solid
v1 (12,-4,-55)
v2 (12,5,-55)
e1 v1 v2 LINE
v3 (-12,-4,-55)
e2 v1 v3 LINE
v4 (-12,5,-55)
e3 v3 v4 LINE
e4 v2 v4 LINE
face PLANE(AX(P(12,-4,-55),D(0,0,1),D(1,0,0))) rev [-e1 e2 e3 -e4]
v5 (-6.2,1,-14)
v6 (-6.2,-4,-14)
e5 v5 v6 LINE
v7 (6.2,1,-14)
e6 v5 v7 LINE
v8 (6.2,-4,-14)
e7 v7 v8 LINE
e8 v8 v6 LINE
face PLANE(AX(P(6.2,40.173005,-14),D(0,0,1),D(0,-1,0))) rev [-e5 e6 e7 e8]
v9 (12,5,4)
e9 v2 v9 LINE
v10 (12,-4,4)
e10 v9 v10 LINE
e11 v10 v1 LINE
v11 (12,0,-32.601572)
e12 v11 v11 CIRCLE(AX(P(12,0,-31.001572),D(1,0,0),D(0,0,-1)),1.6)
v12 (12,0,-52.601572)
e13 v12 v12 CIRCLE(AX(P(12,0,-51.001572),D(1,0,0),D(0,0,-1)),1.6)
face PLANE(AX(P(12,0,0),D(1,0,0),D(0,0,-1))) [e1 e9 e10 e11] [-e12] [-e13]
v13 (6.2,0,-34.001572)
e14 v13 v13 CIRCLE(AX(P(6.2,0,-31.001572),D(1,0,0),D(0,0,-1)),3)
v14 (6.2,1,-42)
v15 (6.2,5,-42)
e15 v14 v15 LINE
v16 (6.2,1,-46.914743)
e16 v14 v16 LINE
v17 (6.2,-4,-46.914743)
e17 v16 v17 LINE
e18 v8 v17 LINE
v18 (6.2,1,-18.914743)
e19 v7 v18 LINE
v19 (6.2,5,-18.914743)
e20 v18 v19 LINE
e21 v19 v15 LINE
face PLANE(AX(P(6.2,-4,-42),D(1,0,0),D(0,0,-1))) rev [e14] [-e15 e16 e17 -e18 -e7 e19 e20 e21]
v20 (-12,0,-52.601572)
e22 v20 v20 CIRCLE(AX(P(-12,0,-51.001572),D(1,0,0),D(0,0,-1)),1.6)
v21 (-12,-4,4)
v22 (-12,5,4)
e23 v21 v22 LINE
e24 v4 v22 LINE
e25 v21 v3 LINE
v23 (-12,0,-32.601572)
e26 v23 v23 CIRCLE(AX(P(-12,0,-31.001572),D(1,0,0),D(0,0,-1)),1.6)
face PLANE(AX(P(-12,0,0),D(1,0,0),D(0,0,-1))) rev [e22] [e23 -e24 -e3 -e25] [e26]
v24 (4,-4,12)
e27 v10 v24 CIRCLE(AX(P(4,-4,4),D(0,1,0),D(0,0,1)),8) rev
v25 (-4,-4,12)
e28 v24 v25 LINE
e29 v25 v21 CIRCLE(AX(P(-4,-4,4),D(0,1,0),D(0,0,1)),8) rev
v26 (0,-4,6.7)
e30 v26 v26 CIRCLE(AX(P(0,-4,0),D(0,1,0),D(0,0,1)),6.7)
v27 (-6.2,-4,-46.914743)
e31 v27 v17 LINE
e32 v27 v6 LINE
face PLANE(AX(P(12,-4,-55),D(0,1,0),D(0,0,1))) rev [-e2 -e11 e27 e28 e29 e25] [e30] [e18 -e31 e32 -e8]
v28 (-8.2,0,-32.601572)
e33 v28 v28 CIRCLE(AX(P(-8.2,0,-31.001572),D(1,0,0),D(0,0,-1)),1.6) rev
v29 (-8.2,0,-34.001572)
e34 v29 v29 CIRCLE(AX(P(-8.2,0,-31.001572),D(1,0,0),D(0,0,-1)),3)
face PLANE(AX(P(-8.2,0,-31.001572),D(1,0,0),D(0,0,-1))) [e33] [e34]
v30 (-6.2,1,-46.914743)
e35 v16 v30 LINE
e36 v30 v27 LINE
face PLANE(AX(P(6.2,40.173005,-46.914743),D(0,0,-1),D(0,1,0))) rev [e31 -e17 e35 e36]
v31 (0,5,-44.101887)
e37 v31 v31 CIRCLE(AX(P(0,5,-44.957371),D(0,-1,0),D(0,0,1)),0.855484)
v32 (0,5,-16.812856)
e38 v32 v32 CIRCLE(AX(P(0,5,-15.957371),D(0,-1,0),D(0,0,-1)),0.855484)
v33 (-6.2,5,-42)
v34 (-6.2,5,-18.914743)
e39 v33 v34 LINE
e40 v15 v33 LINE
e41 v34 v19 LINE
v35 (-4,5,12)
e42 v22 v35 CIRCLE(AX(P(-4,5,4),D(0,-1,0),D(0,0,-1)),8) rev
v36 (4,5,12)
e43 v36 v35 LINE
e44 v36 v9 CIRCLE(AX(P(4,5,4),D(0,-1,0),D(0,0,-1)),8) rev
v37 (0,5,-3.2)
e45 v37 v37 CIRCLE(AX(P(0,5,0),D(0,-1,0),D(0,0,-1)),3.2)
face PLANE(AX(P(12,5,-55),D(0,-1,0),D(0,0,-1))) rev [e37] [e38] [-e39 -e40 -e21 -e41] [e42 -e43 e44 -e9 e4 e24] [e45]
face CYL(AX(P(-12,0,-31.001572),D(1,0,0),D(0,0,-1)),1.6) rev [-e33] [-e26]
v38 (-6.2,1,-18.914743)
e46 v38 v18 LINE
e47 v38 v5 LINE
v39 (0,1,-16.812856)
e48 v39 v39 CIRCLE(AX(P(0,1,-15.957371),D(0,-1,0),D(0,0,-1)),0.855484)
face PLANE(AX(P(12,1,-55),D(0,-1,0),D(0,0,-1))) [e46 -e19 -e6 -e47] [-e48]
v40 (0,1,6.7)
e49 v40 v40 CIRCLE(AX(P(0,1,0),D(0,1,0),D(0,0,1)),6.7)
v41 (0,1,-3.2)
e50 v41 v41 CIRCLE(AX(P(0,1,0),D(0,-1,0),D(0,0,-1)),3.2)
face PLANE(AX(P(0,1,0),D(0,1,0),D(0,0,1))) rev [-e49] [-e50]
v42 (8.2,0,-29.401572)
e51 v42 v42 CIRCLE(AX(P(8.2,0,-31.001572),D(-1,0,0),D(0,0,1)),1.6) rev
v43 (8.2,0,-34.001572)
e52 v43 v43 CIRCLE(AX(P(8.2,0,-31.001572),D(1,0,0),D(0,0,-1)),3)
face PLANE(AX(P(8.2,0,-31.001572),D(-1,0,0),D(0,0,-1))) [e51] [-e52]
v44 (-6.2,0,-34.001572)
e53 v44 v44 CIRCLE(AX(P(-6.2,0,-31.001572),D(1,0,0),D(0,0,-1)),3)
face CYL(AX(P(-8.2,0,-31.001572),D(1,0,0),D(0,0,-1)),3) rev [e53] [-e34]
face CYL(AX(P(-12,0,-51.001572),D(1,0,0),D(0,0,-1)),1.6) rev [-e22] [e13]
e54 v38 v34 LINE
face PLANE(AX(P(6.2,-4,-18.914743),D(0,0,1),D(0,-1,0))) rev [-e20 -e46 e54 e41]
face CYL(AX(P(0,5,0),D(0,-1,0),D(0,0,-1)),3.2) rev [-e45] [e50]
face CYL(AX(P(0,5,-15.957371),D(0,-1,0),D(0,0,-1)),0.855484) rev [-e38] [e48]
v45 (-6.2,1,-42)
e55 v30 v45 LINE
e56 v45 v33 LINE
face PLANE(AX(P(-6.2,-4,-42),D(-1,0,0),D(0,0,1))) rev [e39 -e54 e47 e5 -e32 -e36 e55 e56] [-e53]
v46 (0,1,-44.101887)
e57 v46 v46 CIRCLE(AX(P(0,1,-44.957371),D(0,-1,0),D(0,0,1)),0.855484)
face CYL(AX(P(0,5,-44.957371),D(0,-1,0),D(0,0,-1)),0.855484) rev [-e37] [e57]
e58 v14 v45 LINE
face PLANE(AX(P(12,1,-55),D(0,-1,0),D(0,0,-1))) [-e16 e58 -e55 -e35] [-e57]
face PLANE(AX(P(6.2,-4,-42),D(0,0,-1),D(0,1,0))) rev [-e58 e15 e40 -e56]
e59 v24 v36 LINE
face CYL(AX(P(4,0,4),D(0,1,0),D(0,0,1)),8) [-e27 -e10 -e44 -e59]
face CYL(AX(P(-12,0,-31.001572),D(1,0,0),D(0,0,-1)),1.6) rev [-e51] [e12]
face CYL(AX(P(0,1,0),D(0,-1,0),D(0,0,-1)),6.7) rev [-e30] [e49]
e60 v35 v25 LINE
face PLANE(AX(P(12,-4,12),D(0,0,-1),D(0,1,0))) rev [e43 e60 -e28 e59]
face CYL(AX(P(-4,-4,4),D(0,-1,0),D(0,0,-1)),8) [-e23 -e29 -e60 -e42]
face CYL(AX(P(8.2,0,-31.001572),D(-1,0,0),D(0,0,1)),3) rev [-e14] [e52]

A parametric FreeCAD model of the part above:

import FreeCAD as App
import Part
import Sketcher
Q = App.Units.Quantity


def edges_at(feature, points):
    """Names of the edges that pass closest to the given points."""
    edges = feature.Shape.Edges
    near = lambda p: min(range(len(edges)), key=lambda i: edges[i].distToShape(Part.Vertex(*p))[0])
    return sorted({f"Edge{near(p) + 1}" for p in points})

doc = App.newDocument("Part")
body = doc.addObject("PartDesign::Body", "Body")

# Sketch on YZ plane
sketch1 = body.newObject("Sketcher::SketchObject", "Sketch")
sketch1.AttachmentSupport = (doc.getObject("YZ_Plane"), [""])
sketch1.MapMode = "FlatFace"
sketch1.addGeometry(Part.LineSegment(App.Vector(5, 12, 0), App.Vector(-4, 12, 0)), False)
sketch1.addGeometry(Part.LineSegment(App.Vector(-4, 12, 0), App.Vector(-4, -55, 0)), False)
sketch1.addGeometry(Part.LineSegment(App.Vector(-4, -55, 0), App.Vector(5, -55, 0)), False)
sketch1.addGeometry(Part.LineSegment(App.Vector(5, -55, 0), App.Vector(5, 12, 0)), False)
sketch1.addConstraint(Sketcher.Constraint("Coincident", 0, 2, 1, 1))
sketch1.addConstraint(Sketcher.Constraint("Coincident", 1, 2, 2, 1))
sketch1.addConstraint(Sketcher.Constraint("Coincident", 2, 2, 3, 1))
sketch1.addConstraint(Sketcher.Constraint("Coincident", 3, 2, 0, 1))
sketch1.addConstraint(Sketcher.Constraint("Horizontal", 0))
sketch1.addConstraint(Sketcher.Constraint("Vertical", 1))
sketch1.addConstraint(Sketcher.Constraint("Horizontal", 2))
sketch1.addConstraint(Sketcher.Constraint("Vertical", 3))
sketch1.addConstraint(Sketcher.Constraint("DistanceX", 0, 2, 0, 1, Q("9 mm")))
sketch1.addConstraint(Sketcher.Constraint("DistanceY", 1, 2, 1, 1, Q("67 mm")))
sketch1.addConstraint(Sketcher.Constraint("DistanceX", 0, 2, -1, 1, Q("4 mm")))
sketch1.addConstraint(Sketcher.Constraint("DistanceY", -1, 1, 0, 2, Q("12 mm")))
pad1 = body.newObject("PartDesign::Pad", "Pad")
pad1.Profile = sketch1
pad1.Length = 24
pad1.Midplane = True

# Sketch on XZ plane
sketch2 = body.newObject("Sketcher::SketchObject", "Sketch001")
sketch2.AttachmentSupport = (doc.getObject("XZ_Plane"), [""])
sketch2.MapMode = "FlatFace"
sketch2.AttachmentOffset = App.Placement(App.Vector(0, 0, 4), App.Rotation())
sketch2.addGeometry(Part.Circle(App.Vector(0, 0, 0), App.Vector(0, 0, 1), 7), False)
sketch2.addConstraint(Sketcher.Constraint("Coincident", 0, 3, -1, 1))
sketch2.addConstraint(Sketcher.Constraint("Diameter", 0, Q("13.4 mm")))
pocket1 = body.newObject("PartDesign::Pocket", "Pocket")
pocket1.Profile = sketch2
pocket1.Length = 5

# Sketch on XZ plane
sketch3 = body.newObject("Sketcher::SketchObject", "Sketch002")
sketch3.AttachmentSupport = (doc.getObject("XZ_Plane"), [""])
sketch3.MapMode = "FlatFace"
sketch3.AttachmentOffset = App.Placement(App.Vector(0, 0, -1), App.Rotation())
sketch3.addGeometry(Part.Circle(App.Vector(0, 0, 0), App.Vector(0, 0, 1), 3.2), False)
sketch3.addConstraint(Sketcher.Constraint("Coincident", 0, 3, -1, 1))
sketch3.addConstraint(Sketcher.Constraint("Diameter", 0, Q("6.4 mm")))
pocket2 = body.newObject("PartDesign::Pocket", "Pocket001")
pocket2.Profile = sketch3
pocket2.Type = "ThroughAll"

# Sketch on XZ plane
sketch4 = body.newObject("Sketcher::SketchObject", "Sketch003")
sketch4.AttachmentSupport = (doc.getObject("XZ_Plane"), [""])
sketch4.MapMode = "FlatFace"
sketch4.AttachmentOffset = App.Placement(App.Vector(0, 0, -5), App.Rotation())
sketch4.addGeometry(Part.LineSegment(App.Vector(-6, -42, 0), App.Vector(-6, -19, 0)), False)
sketch4.addGeometry(Part.LineSegment(App.Vector(-6, -19, 0), App.Vector(6, -19, 0)), False)
sketch4.addGeometry(Part.LineSegment(App.Vector(6, -19, 0), App.Vector(6, -42, 0)), False)
sketch4.addGeometry(Part.LineSegment(App.Vector(6, -42, 0), App.Vector(-6, -42, 0)), False)
sketch4.addConstraint(Sketcher.Constraint("Coincident", 0, 2, 1, 1))
sketch4.addConstraint(Sketcher.Constraint("Coincident", 1, 2, 2, 1))
sketch4.addConstraint(Sketcher.Constraint("Coincident", 2, 2, 3, 1))
sketch4.addConstraint(Sketcher.Constraint("Coincident", 3, 2, 0, 1))
sketch4.addConstraint(Sketcher.Constraint("Vertical", 0))
sketch4.addConstraint(Sketcher.Constraint("Horizontal", 1))
sketch4.addConstraint(Sketcher.Constraint("Vertical", 2))
sketch4.addConstraint(Sketcher.Constraint("Horizontal", 3))
sketch4.addConstraint(Sketcher.Constraint("DistanceX", 1, 1, 1, 2, Q("12.4 mm")))
sketch4.addConstraint(Sketcher.Constraint("DistanceY", 2, 2, -1, 1, Q("42 mm")))
sketch4.addConstraint(Sketcher.Constraint("DistanceX", 0, 2, -1, 1, Q("6.2 mm")))
sketch4.addConstraint(Sketcher.Constraint("DistanceY", 0, 1, 0, 2, Q("23.085257 mm")))
pocket3 = body.newObject("PartDesign::Pocket", "Pocket002")
pocket3.Profile = sketch4
pocket3.Type = "ThroughAll"
pocket3.Reversed = True

# Sketch on XZ plane
sketch5 = body.newObject("Sketcher::SketchObject", "Sketch004")
sketch5.AttachmentSupport = (doc.getObject("XZ_Plane"), [""])
sketch5.MapMode = "FlatFace"
sketch5.AttachmentOffset = App.Placement(App.Vector(0, 0, 4), App.Rotation())
sketch5.addGeometry(Part.LineSegment(App.Vector(-6, -14, 0), App.Vector(-6, -47, 0)), False)
sketch5.addGeometry(Part.LineSegment(App.Vector(-6, -47, 0), App.Vector(6, -47, 0)), False)
sketch5.addGeometry(Part.LineSegment(App.Vector(6, -47, 0), App.Vector(6, -14, 0)), False)
sketch5.addGeometry(Part.LineSegment(App.Vector(6, -14, 0), App.Vector(-6, -14, 0)), False)
sketch5.addConstraint(Sketcher.Constraint("Coincident", 0, 2, 1, 1))
sketch5.addConstraint(Sketcher.Constraint("Coincident", 1, 2, 2, 1))
sketch5.addConstraint(Sketcher.Constraint("Coincident", 2, 2, 3, 1))
sketch5.addConstraint(Sketcher.Constraint("Coincident", 3, 2, 0, 1))
sketch5.addConstraint(Sketcher.Constraint("Vertical", 0))
sketch5.addConstraint(Sketcher.Constraint("Horizontal", 1))
sketch5.addConstraint(Sketcher.Constraint("Vertical", 2))
sketch5.addConstraint(Sketcher.Constraint("Horizontal", 3))
sketch5.addConstraint(Sketcher.Constraint("DistanceX", 1, 1, 1, 2, Q("12.4 mm")))
sketch5.addConstraint(Sketcher.Constraint("DistanceY", 2, 2, -1, 1, Q("14 mm")))
sketch5.addConstraint(Sketcher.Constraint("DistanceX", 0, 2, -1, 1, Q("6.2 mm")))
sketch5.addConstraint(Sketcher.Constraint("DistanceY", 0, 2, 0, 1, Q("32.914743 mm")))
pocket4 = body.newObject("PartDesign::Pocket", "Pocket003")
pocket4.Profile = sketch5
pocket4.Length = 5

# Sketch on XZ plane
sketch6 = body.newObject("Sketcher::SketchObject", "Sketch005")
sketch6.AttachmentSupport = (doc.getObject("XZ_Plane"), [""])
sketch6.MapMode = "FlatFace"
sketch6.AttachmentOffset = App.Placement(App.Vector(0, 0, -1), App.Rotation())
sketch6.addGeometry(Part.Circle(App.Vector(0, -16, 0), App.Vector(0, 0, 1), 0.9), False)
sketch6.addGeometry(Part.Circle(App.Vector(0, -45, 0), App.Vector(0, 0, 1), 0.9), False)
sketch6.addConstraint(Sketcher.Constraint("Equal", 0, 1))
sketch6.addConstraint(Sketcher.Constraint("PointOnObject", 0, 3, -2))
sketch6.addConstraint(Sketcher.Constraint("PointOnObject", 1, 3, -2))
sketch6.addConstraint(Sketcher.Constraint("DistanceY", 1, 3, 0, 3, Q("29 mm")))
sketch6.addConstraint(Sketcher.Constraint("Diameter", 0, Q("1.710969 mm")))
sketch6.addConstraint(Sketcher.Constraint("DistanceY", 0, 3, -1, 1, Q("15.957371 mm")))
pocket5 = body.newObject("PartDesign::Pocket", "Pocket004")
pocket5.Profile = sketch6
pocket5.Type = "ThroughAll"
doc.recompute()

fillet = body.newObject("PartDesign::Fillet", "Fillet")
fillet.Base = (pocket5, edges_at(pocket5, [(12, 0.5, 12), (-12, 0.5, 12)]))
fillet.Radius = 8

# Sketch on YZ plane
sketch7 = body.newObject("Sketcher::SketchObject", "Sketch006")
sketch7.AttachmentSupport = (doc.getObject("YZ_Plane"), [""])
sketch7.MapMode = "FlatFace"
sketch7.AttachmentOffset = App.Placement(App.Vector(0, 0, 12), App.Rotation())
sketch7.addGeometry(Part.Circle(App.Vector(0, -51, 0), App.Vector(0, 0, 1), 1.6), False)
sketch7.addGeometry(Part.Circle(App.Vector(0, -31, 0), App.Vector(0, 0, 1), 1.6), False)
sketch7.addConstraint(Sketcher.Constraint("Equal", 0, 1))
sketch7.addConstraint(Sketcher.Constraint("PointOnObject", 0, 3, -2))
sketch7.addConstraint(Sketcher.Constraint("PointOnObject", 1, 3, -2))
sketch7.addConstraint(Sketcher.Constraint("Diameter", 0, Q("3.2 mm")))
sketch7.addConstraint(Sketcher.Constraint("DistanceY", 0, 3, 1, 3, Q("20 mm")))
sketch7.addConstraint(Sketcher.Constraint("DistanceY", 0, 3, -1, 1, Q("51.001572 mm")))
pocket6 = body.newObject("PartDesign::Pocket", "Pocket005")
pocket6.Profile = sketch7
pocket6.Type = "ThroughAll"

# Sketch on YZ plane
sketch8 = body.newObject("Sketcher::SketchObject", "Sketch007")
sketch8.AttachmentSupport = (doc.getObject("YZ_Plane"), [""])
sketch8.MapMode = "FlatFace"
sketch8.AttachmentOffset = App.Placement(App.Vector(0, 0, -6.2), App.Rotation())
sketch8.addGeometry(Part.Circle(App.Vector(0, -31, 0), App.Vector(0, 0, 1), 3), False)
sketch8.addConstraint(Sketcher.Constraint("PointOnObject", 0, 3, -2))
sketch8.addConstraint(Sketcher.Constraint("Diameter", 0, Q("6 mm")))
sketch8.addConstraint(Sketcher.Constraint("DistanceY", 0, 3, -1, 1, Q("31.001572 mm")))
pocket7 = body.newObject("PartDesign::Pocket", "Pocket006")
pocket7.Profile = sketch8
pocket7.Length = 2
doc.recompute()

mirrored = body.newObject("PartDesign::Mirrored", "Mirrored")
mirrored.Originals = [pocket7]
mirrored.MirrorPlane = (doc.getObject("YZ_Plane"), [""])
body.Tip = mirrored

doc.recompute()
